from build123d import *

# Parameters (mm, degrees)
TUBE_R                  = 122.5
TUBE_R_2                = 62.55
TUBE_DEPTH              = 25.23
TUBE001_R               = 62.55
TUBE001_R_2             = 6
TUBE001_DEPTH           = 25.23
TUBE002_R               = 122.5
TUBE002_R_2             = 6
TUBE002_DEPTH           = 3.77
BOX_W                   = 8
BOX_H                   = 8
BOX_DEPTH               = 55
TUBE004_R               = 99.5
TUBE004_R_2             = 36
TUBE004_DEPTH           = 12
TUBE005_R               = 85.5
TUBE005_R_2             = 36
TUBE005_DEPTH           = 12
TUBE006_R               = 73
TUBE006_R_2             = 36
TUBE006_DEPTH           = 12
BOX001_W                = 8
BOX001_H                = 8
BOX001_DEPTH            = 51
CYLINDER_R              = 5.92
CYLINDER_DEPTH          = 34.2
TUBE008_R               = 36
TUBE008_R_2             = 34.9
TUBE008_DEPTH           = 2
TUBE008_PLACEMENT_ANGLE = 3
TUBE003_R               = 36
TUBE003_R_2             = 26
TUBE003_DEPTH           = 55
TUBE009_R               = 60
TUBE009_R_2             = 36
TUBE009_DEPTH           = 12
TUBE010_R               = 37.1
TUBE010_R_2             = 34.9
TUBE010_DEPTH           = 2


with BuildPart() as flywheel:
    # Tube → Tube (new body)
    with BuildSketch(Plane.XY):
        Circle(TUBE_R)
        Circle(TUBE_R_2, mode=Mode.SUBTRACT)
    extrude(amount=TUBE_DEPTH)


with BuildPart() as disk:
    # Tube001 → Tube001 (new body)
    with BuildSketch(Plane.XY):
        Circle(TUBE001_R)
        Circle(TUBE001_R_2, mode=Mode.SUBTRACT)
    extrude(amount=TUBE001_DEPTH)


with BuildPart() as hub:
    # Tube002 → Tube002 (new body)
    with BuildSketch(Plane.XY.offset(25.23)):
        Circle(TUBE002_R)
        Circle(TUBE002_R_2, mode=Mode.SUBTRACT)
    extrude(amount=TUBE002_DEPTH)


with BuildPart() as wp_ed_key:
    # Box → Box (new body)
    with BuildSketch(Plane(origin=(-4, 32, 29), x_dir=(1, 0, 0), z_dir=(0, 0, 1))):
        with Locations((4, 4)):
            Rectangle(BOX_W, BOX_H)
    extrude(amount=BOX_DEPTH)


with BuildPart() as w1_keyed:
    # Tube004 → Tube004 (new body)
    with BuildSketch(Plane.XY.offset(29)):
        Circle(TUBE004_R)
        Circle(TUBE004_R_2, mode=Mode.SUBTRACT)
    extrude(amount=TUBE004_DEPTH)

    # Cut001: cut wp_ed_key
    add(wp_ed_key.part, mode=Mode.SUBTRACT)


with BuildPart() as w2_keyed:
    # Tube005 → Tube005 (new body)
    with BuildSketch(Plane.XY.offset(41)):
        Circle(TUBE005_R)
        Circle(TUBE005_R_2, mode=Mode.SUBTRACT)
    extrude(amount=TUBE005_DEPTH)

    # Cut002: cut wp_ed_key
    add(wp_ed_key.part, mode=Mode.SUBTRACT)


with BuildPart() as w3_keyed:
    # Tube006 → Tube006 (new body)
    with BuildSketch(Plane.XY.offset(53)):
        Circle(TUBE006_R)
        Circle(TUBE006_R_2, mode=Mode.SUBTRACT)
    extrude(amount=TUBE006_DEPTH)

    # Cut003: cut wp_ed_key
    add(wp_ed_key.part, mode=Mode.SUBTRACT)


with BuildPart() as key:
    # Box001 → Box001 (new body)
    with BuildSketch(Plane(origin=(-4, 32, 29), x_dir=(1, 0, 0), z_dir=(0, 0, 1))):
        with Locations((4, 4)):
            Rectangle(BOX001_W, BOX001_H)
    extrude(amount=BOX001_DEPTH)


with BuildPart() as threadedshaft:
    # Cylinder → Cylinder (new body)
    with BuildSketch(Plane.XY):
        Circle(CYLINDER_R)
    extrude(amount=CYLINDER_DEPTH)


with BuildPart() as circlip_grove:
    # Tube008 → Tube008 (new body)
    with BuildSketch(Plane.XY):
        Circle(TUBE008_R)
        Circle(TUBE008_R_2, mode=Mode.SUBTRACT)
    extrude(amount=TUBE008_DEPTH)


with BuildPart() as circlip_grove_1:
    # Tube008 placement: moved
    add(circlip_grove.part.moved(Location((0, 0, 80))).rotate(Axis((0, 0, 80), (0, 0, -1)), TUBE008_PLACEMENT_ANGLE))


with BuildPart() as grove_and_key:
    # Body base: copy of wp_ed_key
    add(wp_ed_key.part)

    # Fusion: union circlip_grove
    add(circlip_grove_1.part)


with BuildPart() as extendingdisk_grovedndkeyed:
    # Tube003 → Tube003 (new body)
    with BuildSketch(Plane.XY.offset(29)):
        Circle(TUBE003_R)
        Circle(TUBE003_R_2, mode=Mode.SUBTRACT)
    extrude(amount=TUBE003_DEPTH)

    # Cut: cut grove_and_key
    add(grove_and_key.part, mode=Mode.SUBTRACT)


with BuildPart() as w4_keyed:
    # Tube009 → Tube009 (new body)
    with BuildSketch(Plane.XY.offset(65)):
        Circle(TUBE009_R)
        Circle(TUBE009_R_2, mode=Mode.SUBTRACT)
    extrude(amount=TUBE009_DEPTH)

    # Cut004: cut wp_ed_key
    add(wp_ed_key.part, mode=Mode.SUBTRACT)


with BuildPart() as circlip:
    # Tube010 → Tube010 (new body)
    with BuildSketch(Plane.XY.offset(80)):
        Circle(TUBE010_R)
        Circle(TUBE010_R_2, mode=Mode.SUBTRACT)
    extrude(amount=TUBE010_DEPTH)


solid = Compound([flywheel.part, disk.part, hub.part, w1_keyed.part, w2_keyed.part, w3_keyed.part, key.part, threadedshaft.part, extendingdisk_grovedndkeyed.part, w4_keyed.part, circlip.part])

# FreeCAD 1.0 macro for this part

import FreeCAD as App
import Part
import Sketcher

V = App.Vector


def add_polygon(sketch, points):
    """Adds a closed chain of lines whose ends are joined by coincident constraints."""
    first, n = sketch.GeometryCount, len(points)
    for a, b in zip(points, points[1:] + points[:1]):
        sketch.addGeometry(Part.LineSegment(App.Vector(*a, 0), App.Vector(*b, 0)), False)
    for i in range(n):
        sketch.addConstraint(Sketcher.Constraint("Coincident", first + i, 2, first + (i + 1) % n, 1))

doc = App.newDocument("Part")
body = doc.addObject("PartDesign::Body", "Body")

# Sketch on XY plane
sketch1 = body.newObject("Sketcher::SketchObject", "Sketch")
sketch1.AttachmentSupport = (doc.getObject("XY_Plane"), [""])
sketch1.MapMode = "FlatFace"
sketch1.addGeometry([
    Part.Circle(V(0, 0, 0), V(0, 0, 1), 122),
    Part.Circle(V(0, 0, 0), V(0, 0, 1), 63),
], False)
sketch1.addConstraint([
    Sketcher.Constraint("Coincident", 0, 3, -1, 1),
    Sketcher.Constraint("Coincident", 1, 3, -1, 1),
    Sketcher.Constraint("Diameter", 0, 245.0),
    Sketcher.Constraint("Diameter", 1, 125.1),
])
pad1 = body.newObject("PartDesign::Pad", "Pad")
pad1.Profile = sketch1
pad1.Length = 25.23
body2 = doc.addObject("PartDesign::Body", "Body001")

# Sketch on XY plane
sketch2 = body2.newObject("Sketcher::SketchObject", "Sketch001")
sketch2.AttachmentSupport = (doc.getObject("XY_Plane001"), [""])
sketch2.MapMode = "FlatFace"
sketch2.addGeometry([
    Part.Circle(V(0, 0, 0), V(0, 0, 1), 63),
    Part.Circle(V(0, 0, 0), V(0, 0, 1), 6),
], False)
sketch2.addConstraint([
    Sketcher.Constraint("Coincident", 0, 3, -1, 1),
    Sketcher.Constraint("Coincident", 1, 3, -1, 1),
    Sketcher.Constraint("Diameter", 1, 12.0),
    Sketcher.Constraint("Diameter", 0, 125.1),
])
pad2 = body2.newObject("PartDesign::Pad", "Pad001")
pad2.Profile = sketch2
pad2.Length = 25.23
body3 = doc.addObject("PartDesign::Body", "Body002")

# Sketch on XY plane
sketch3 = body3.newObject("Sketcher::SketchObject", "Sketch002")
sketch3.AttachmentSupport = (doc.getObject("XY_Plane002"), [""])
sketch3.MapMode = "FlatFace"
sketch3.AttachmentOffset = App.Placement(V(0, 0, 25.23), App.Rotation())
sketch3.addGeometry([
    Part.Circle(V(0, 0, 0), V(0, 0, 1), 122),
    Part.Circle(V(0, 0, 0), V(0, 0, 1), 6),
], False)
sketch3.addConstraint([
    Sketcher.Constraint("Coincident", 0, 3, -1, 1),
    Sketcher.Constraint("Coincident", 1, 3, -1, 1),
    Sketcher.Constraint("Diameter", 0, 245.0),
    Sketcher.Constraint("Diameter", 1, 12.0),
])
pad3 = body3.newObject("PartDesign::Pad", "Pad002")
pad3.Profile = sketch3
pad3.Length = 3.77
body4 = doc.addObject("PartDesign::Body", "Body003")

# Sketch on XY plane
sketch4 = body4.newObject("Sketcher::SketchObject", "Sketch003")
sketch4.AttachmentSupport = (doc.getObject("XY_Plane003"), [""])
sketch4.MapMode = "FlatFace"
sketch4.AttachmentOffset = App.Placement(V(0, 0, 29), App.Rotation())
add_polygon(sketch4, [(-4, 40), (-4, 32), (4, 32), (4, 40)])  # lines 0-3
sketch4.addConstraint([
    Sketcher.Constraint("Vertical", 0),
    Sketcher.Constraint("Horizontal", 1),
    Sketcher.Constraint("Vertical", 2),
    Sketcher.Constraint("Horizontal", 3),
    Sketcher.Constraint("Equal", 3, 0),
    Sketcher.Constraint("DistanceX", 1, 1, 1, 2, 8.0),
    Sketcher.Constraint("DistanceX", 0, 2, -1, 1, 4.0),
    Sketcher.Constraint("DistanceY", -1, 1, 0, 2, 32.0),
])
pad4 = body4.newObject("PartDesign::Pad", "Pad003")
pad4.Profile = sketch4
pad4.Length = 55
body5 = doc.addObject("PartDesign::Body", "Body004")

# Sketch on XY plane
sketch5 = body5.newObject("Sketcher::SketchObject", "Sketch004")
sketch5.AttachmentSupport = (doc.getObject("XY_Plane004"), [""])
sketch5.MapMode = "FlatFace"
sketch5.AttachmentOffset = App.Placement(V(0, 0, 29), App.Rotation())
sketch5.addGeometry([
    Part.Circle(V(0, 0, 0), V(0, 0, 1), 100),
    Part.Circle(V(0, 0, 0), V(0, 0, 1), 36),
], False)
sketch5.addConstraint([
    Sketcher.Constraint("Coincident", 0, 3, -1, 1),
    Sketcher.Constraint("Coincident", 1, 3, -1, 1),
    Sketcher.Constraint("Diameter", 0, 199.0),
    Sketcher.Constraint("Diameter", 1, 72.0),
])
pad5 = body5.newObject("PartDesign::Pad", "Pad004")
pad5.Profile = sketch5
pad5.Length = 12
doc.recompute()

body6 = doc.addObject("PartDesign::Body", "Body005")
body6.BaseFeature = body4
boolean = body5.newObject("PartDesign::Boolean", "Boolean")
boolean.Type = "Cut"
boolean.addObjects([body6])
doc.recompute()
body7 = doc.addObject("PartDesign::Body", "Body006")

# Sketch on XY plane
sketch6 = body7.newObject("Sketcher::SketchObject", "Sketch005")
sketch6.AttachmentSupport = (doc.getObject("XY_Plane006"), [""])
sketch6.MapMode = "FlatFace"
sketch6.AttachmentOffset = App.Placement(V(0, 0, 41), App.Rotation())
sketch6.addGeometry([
    Part.Circle(V(0, 0, 0), V(0, 0, 1), 86),
    Part.Circle(V(0, 0, 0), V(0, 0, 1), 36),
], False)
sketch6.addConstraint([
    Sketcher.Constraint("Coincident", 0, 3, -1, 1),
    Sketcher.Constraint("Coincident", 1, 3, -1, 1),
    Sketcher.Constraint("Diameter", 0, 171.0),
    Sketcher.Constraint("Diameter", 1, 72.0),
])
pad6 = body7.newObject("PartDesign::Pad", "Pad005")
pad6.Profile = sketch6
pad6.Length = 12
doc.recompute()

body8 = doc.addObject("PartDesign::Body", "Body007")
body8.BaseFeature = body4
boolean2 = body7.newObject("PartDesign::Boolean", "Boolean001")
boolean2.Type = "Cut"
boolean2.addObjects([body8])
doc.recompute()
body9 = doc.addObject("PartDesign::Body", "Body008")

# Sketch on XY plane
sketch7 = body9.newObject("Sketcher::SketchObject", "Sketch006")
sketch7.AttachmentSupport = (doc.getObject("XY_Plane008"), [""])
sketch7.MapMode = "FlatFace"
sketch7.AttachmentOffset = App.Placement(V(0, 0, 53), App.Rotation())
sketch7.addGeometry([
    Part.Circle(V(0, 0, 0), V(0, 0, 1), 73),
    Part.Circle(V(0, 0, 0), V(0, 0, 1), 36),
], False)
sketch7.addConstraint([
    Sketcher.Constraint("Coincident", 0, 3, -1, 1),
    Sketcher.Constraint("Coincident", 1, 3, -1, 1),
    Sketcher.Constraint("Diameter", 0, 146.0),
    Sketcher.Constraint("Diameter", 1, 72.0),
])
pad7 = body9.newObject("PartDesign::Pad", "Pad006")
pad7.Profile = sketch7
pad7.Length = 12
doc.recompute()

body10 = doc.addObject("PartDesign::Body", "Body009")
body10.BaseFeature = body4
boolean3 = body9.newObject("PartDesign::Boolean", "Boolean002")
boolean3.Type = "Cut"
boolean3.addObjects([body10])
doc.recompute()
body11 = doc.addObject("PartDesign::Body", "Body010")

# Sketch on XY plane
sketch8 = body11.newObject("Sketcher::SketchObject", "Sketch007")
sketch8.AttachmentSupport = (doc.getObject("XY_Plane010"), [""])
sketch8.MapMode = "FlatFace"
sketch8.AttachmentOffset = App.Placement(V(0, 0, 29), App.Rotation())
add_polygon(sketch8, [(-4, 40), (-4, 32), (4, 32), (4, 40)])  # lines 0-3
sketch8.addConstraint([
    Sketcher.Constraint("Vertical", 0),
    Sketcher.Constraint("Horizontal", 1),
    Sketcher.Constraint("Vertical", 2),
    Sketcher.Constraint("Horizontal", 3),
    Sketcher.Constraint("Equal", 3, 0),
    Sketcher.Constraint("DistanceX", 1, 1, 1, 2, 8.0),
    Sketcher.Constraint("DistanceX", 0, 2, -1, 1, 4.0),
    Sketcher.Constraint("DistanceY", -1, 1, 0, 2, 32.0),
])
pad8 = body11.newObject("PartDesign::Pad", "Pad007")
pad8.Profile = sketch8
pad8.Length = 51
body12 = doc.addObject("PartDesign::Body", "Body011")

# Sketch on XY plane
sketch9 = body12.newObject("Sketcher::SketchObject", "Sketch008")
sketch9.AttachmentSupport = (doc.getObject("XY_Plane011"), [""])
sketch9.MapMode = "FlatFace"
sketch9.addGeometry(Part.Circle(V(0, 0, 0), V(0, 0, 1), 6), False)
sketch9.addConstraint([
    Sketcher.Constraint("Coincident", 0, 3, -1, 1),
    Sketcher.Constraint("Diameter", 0, 11.84),
])
pad9 = body12.newObject("PartDesign::Pad", "Pad008")
pad9.Profile = sketch9
pad9.Length = 34.2
body13 = doc.addObject("PartDesign::Body", "Body012")

# Sketch on XY plane
sketch10 = body13.newObject("Sketcher::SketchObject", "Sketch009")
sketch10.AttachmentSupport = (doc.getObject("XY_Plane012"), [""])
sketch10.MapMode = "FlatFace"
sketch10.addGeometry([
    Part.Circle(V(0, 0, 0), V(0, 0, 1), 36),
    Part.Circle(V(0, 0, 0), V(0, 0, 1), 35),
], False)
sketch10.addConstraint([
    Sketcher.Constraint("Coincident", 0, 3, -1, 1),
    Sketcher.Constraint("Coincident", 1, 3, -1, 1),
    Sketcher.Constraint("Diameter", 0, 72.0),
    Sketcher.Constraint("Diameter", 1, 69.8),
])
pad10 = body13.newObject("PartDesign::Pad", "Pad009")
pad10.Profile = sketch10
pad10.Length = 2
body14 = doc.addObject("PartDesign::Body", "Body013")
doc.recompute()

body13.Placement = App.Placement(V(0, 0, 80), App.Rotation(V(0, 0, -1), 3))
boolean4 = body14.newObject("PartDesign::Boolean", "Boolean003")
boolean4.Type = "Fuse"
boolean4.addObjects([body13])
body15 = doc.addObject("PartDesign::Body", "Body014")
doc.recompute()

body15.BaseFeature = body4
doc.recompute()

boolean5 = body15.newObject("PartDesign::Boolean", "Boolean004")
boolean5.Type = "Fuse"
boolean5.addObjects([body14])
body16 = doc.addObject("PartDesign::Body", "Body015")

# Sketch on XY plane
sketch11 = body16.newObject("Sketcher::SketchObject", "Sketch010")
sketch11.AttachmentSupport = (doc.getObject("XY_Plane015"), [""])
sketch11.MapMode = "FlatFace"
sketch11.AttachmentOffset = App.Placement(V(0, 0, 29), App.Rotation())
sketch11.addGeometry([
    Part.Circle(V(0, 0, 0), V(0, 0, 1), 36),
    Part.Circle(V(0, 0, 0), V(0, 0, 1), 26),
], False)
sketch11.addConstraint([
    Sketcher.Constraint("Coincident", 0, 3, -1, 1),
    Sketcher.Constraint("Coincident", 1, 3, -1, 1),
    Sketcher.Constraint("Diameter", 0, 72.0),
    Sketcher.Constraint("Diameter", 1, 52.0),
])
pad11 = body16.newObject("PartDesign::Pad", "Pad010")
pad11.Profile = sketch11
pad11.Length = 55
doc.recompute()

boolean6 = body16.newObject("PartDesign::Boolean", "Boolean005")
boolean6.Type = "Cut"
boolean6.addObjects([body15])
body17 = doc.addObject("PartDesign::Body", "Body016")

# Sketch on XY plane
sketch12 = body17.newObject("Sketcher::SketchObject", "Sketch011")
sketch12.AttachmentSupport = (doc.getObject("XY_Plane016"), [""])
sketch12.MapMode = "FlatFace"
sketch12.AttachmentOffset = App.Placement(V(0, 0, 65), App.Rotation())
sketch12.addGeometry([
    Part.Circle(V(0, 0, 0), V(0, 0, 1), 60),
    Part.Circle(V(0, 0, 0), V(0, 0, 1), 36),
], False)
sketch12.addConstraint([
    Sketcher.Constraint("Coincident", 0, 3, -1, 1),
    Sketcher.Constraint("Coincident", 1, 3, -1, 1),
    Sketcher.Constraint("Diameter", 0, 120.0),
    Sketcher.Constraint("Diameter", 1, 72.0),
])
pad12 = body17.newObject("PartDesign::Pad", "Pad011")
pad12.Profile = sketch12
pad12.Length = 12
doc.recompute()

boolean7 = body17.newObject("PartDesign::Boolean", "Boolean006")
boolean7.Type = "Cut"
boolean7.addObjects([body4])
body18 = doc.addObject("PartDesign::Body", "Body017")

# Sketch on XY plane
sketch13 = body18.newObject("Sketcher::SketchObject", "Sketch012")
sketch13.AttachmentSupport = (doc.getObject("XY_Plane017"), [""])
sketch13.MapMode = "FlatFace"
sketch13.AttachmentOffset = App.Placement(V(0, 0, 80), App.Rotation())
sketch13.addGeometry([
    Part.Circle(V(0, 0, 0), V(0, 0, 1), 37),
    Part.Circle(V(0, 0, 0), V(0, 0, 1), 35),
], False)
sketch13.addConstraint([
    Sketcher.Constraint("Coincident", 0, 3, -1, 1),
    Sketcher.Constraint("Coincident", 1, 3, -1, 1),
    Sketcher.Constraint("Diameter", 0, 74.2),
    Sketcher.Constraint("Diameter", 1, 69.8),
])
pad13 = body18.newObject("PartDesign::Pad", "Pad012")
pad13.Profile = sketch13
pad13.Length = 2

doc.recompute()
